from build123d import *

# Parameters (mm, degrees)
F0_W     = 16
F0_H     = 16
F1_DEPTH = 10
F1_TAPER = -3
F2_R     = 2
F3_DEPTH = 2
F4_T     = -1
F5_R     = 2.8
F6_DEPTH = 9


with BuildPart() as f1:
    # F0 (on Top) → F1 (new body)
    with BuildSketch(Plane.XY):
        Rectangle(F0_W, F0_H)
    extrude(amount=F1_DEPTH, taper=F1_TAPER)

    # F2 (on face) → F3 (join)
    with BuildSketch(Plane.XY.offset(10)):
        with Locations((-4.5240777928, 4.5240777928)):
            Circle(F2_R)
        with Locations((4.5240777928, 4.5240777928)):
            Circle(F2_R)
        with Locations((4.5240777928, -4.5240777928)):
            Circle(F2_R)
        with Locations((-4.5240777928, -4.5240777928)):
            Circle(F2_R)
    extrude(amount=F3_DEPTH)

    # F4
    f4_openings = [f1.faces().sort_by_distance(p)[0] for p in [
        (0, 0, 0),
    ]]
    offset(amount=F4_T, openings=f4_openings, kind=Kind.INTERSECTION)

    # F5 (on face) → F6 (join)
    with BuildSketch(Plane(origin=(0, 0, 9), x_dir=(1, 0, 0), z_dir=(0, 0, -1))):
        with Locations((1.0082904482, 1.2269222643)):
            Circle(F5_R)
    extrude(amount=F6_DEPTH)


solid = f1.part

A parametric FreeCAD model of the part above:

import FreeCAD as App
import Part
import Sketcher
Q = App.Units.Quantity


def faces_at(feature, points):
    """Names of the faces that lie closest to the given points."""
    faces = feature.Shape.Faces
    near = lambda p: min(range(len(faces)), key=lambda i: faces[i].distToShape(Part.Vertex(*p))[0])
    return sorted({f"Face{near(p) + 1}" for p in points})


def add_polygon(sketch, points):
    """Adds a closed chain of lines whose ends are joined by coincident constraints."""
    first, n = sketch.GeometryCount, len(points)
    for a, b in zip(points, points[1:] + points[:1]):
        sketch.addGeometry(Part.LineSegment(App.Vector(*a, 0), App.Vector(*b, 0)), False)
    for i in range(n):
        sketch.addConstraint(Sketcher.Constraint("Coincident", first + i, 2, first + (i + 1) % n, 1))

doc = App.newDocument("Part")
body = doc.addObject("PartDesign::Body", "Body")

sketch1 = body.newObject("Sketcher::SketchObject", "Sketch")
sketch1.AttachmentSupport = (doc.getObject("XY_Plane"), [""])
sketch1.MapMode = "FlatFace"
add_polygon(sketch1, [(-8, 8), (-8, -8), (8, -8), (8, 8)])
sketch1.addConstraint([
    Sketcher.Constraint("Vertical", 0),
    Sketcher.Constraint("Horizontal", 1),
    Sketcher.Constraint("Vertical", 2),
    Sketcher.Constraint("Horizontal", 3),
    Sketcher.Constraint("Symmetric", 0, 2, 2, 2, -1, 1),
    Sketcher.Constraint("Equal", 3, 0),
    Sketcher.Constraint("DistanceX", 1, 1, 1, 2, Q("16 mm")),
])
pad1 = body.newObject("PartDesign::Pad", "Pad")
pad1.Profile = sketch1
pad1.Length = 10
pad1.TaperAngle = 3

sketch2 = body.newObject("Sketcher::SketchObject", "Sketch001")
sketch2.AttachmentSupport = (doc.getObject("XY_Plane"), [""])
sketch2.MapMode = "FlatFace"
sketch2.AttachmentOffset = App.Placement(App.Vector(0, 0, 10), App.Rotation())
sketch2.addGeometry([
    Part.Circle(App.Vector(-4.5, 4.5, 0), App.Vector(0, 0, 1), 2),
    Part.Circle(App.Vector(4.5, 4.5, 0), App.Vector(0, 0, 1), 2),
    Part.Circle(App.Vector(4.5, -4.5, 0), App.Vector(0, 0, 1), 2),
    Part.Circle(App.Vector(-4.5, -4.5, 0), App.Vector(0, 0, 1), 2),
], False)
sketch2.addConstraint([
    Sketcher.Constraint("Equal", 0, 1),
    Sketcher.Constraint("Equal", 1, 2),
    Sketcher.Constraint("Equal", 2, 3),
    Sketcher.Constraint("Symmetric", 0, 3, 2, 3, -1, 1),
    Sketcher.Constraint("Symmetric", 1, 3, 3, 3, -1, 1),
    Sketcher.Constraint("Symmetric", 0, 3, 1, 3, -2),
    Sketcher.Constraint("Diameter", 0, Q("4 mm")),
    Sketcher.Constraint("DistanceX", 0, 3, -1, 1, Q("4.524078 mm")),
    Sketcher.Constraint("DistanceY", -1, 1, 0, 3, Q("4.524078 mm")),
])
pad2 = body.newObject("PartDesign::Pad", "Pad001")
pad2.Profile = sketch2
pad2.Length = 2
doc.recompute()

thickness = body.newObject("PartDesign::Thickness", "Thickness")
thickness.Base = (pad2, faces_at(pad2, [(0, 0, 0)]))
thickness.Value = 1
thickness.Reversed = True
thickness.Join = "Intersection"

sketch3 = body.newObject("Sketcher::SketchObject", "Sketch002")
sketch3.AttachmentSupport = (doc.getObject("XY_Plane"), [""])
sketch3.MapMode = "FlatFace"
sketch3.AttachmentOffset = App.Placement(App.Vector(0, 0, 9), App.Rotation())
sketch3.addGeometry(Part.Circle(App.Vector(1, -1.2, 0), App.Vector(0, 0, 1), 2.8), False)
sketch3.addConstraint([
    Sketcher.Constraint("Diameter", 0, Q("5.6 mm")),
    Sketcher.Constraint("DistanceX", -1, 1, 0, 3, Q("1.00829 mm")),
    Sketcher.Constraint("DistanceY", 0, 3, -1, 1, Q("1.226922 mm")),
])
pad3 = body.newObject("PartDesign::Pad", "Pad002")
pad3.Profile = sketch3
pad3.Length = 9
pad3.Reversed = True

doc.recompute()
